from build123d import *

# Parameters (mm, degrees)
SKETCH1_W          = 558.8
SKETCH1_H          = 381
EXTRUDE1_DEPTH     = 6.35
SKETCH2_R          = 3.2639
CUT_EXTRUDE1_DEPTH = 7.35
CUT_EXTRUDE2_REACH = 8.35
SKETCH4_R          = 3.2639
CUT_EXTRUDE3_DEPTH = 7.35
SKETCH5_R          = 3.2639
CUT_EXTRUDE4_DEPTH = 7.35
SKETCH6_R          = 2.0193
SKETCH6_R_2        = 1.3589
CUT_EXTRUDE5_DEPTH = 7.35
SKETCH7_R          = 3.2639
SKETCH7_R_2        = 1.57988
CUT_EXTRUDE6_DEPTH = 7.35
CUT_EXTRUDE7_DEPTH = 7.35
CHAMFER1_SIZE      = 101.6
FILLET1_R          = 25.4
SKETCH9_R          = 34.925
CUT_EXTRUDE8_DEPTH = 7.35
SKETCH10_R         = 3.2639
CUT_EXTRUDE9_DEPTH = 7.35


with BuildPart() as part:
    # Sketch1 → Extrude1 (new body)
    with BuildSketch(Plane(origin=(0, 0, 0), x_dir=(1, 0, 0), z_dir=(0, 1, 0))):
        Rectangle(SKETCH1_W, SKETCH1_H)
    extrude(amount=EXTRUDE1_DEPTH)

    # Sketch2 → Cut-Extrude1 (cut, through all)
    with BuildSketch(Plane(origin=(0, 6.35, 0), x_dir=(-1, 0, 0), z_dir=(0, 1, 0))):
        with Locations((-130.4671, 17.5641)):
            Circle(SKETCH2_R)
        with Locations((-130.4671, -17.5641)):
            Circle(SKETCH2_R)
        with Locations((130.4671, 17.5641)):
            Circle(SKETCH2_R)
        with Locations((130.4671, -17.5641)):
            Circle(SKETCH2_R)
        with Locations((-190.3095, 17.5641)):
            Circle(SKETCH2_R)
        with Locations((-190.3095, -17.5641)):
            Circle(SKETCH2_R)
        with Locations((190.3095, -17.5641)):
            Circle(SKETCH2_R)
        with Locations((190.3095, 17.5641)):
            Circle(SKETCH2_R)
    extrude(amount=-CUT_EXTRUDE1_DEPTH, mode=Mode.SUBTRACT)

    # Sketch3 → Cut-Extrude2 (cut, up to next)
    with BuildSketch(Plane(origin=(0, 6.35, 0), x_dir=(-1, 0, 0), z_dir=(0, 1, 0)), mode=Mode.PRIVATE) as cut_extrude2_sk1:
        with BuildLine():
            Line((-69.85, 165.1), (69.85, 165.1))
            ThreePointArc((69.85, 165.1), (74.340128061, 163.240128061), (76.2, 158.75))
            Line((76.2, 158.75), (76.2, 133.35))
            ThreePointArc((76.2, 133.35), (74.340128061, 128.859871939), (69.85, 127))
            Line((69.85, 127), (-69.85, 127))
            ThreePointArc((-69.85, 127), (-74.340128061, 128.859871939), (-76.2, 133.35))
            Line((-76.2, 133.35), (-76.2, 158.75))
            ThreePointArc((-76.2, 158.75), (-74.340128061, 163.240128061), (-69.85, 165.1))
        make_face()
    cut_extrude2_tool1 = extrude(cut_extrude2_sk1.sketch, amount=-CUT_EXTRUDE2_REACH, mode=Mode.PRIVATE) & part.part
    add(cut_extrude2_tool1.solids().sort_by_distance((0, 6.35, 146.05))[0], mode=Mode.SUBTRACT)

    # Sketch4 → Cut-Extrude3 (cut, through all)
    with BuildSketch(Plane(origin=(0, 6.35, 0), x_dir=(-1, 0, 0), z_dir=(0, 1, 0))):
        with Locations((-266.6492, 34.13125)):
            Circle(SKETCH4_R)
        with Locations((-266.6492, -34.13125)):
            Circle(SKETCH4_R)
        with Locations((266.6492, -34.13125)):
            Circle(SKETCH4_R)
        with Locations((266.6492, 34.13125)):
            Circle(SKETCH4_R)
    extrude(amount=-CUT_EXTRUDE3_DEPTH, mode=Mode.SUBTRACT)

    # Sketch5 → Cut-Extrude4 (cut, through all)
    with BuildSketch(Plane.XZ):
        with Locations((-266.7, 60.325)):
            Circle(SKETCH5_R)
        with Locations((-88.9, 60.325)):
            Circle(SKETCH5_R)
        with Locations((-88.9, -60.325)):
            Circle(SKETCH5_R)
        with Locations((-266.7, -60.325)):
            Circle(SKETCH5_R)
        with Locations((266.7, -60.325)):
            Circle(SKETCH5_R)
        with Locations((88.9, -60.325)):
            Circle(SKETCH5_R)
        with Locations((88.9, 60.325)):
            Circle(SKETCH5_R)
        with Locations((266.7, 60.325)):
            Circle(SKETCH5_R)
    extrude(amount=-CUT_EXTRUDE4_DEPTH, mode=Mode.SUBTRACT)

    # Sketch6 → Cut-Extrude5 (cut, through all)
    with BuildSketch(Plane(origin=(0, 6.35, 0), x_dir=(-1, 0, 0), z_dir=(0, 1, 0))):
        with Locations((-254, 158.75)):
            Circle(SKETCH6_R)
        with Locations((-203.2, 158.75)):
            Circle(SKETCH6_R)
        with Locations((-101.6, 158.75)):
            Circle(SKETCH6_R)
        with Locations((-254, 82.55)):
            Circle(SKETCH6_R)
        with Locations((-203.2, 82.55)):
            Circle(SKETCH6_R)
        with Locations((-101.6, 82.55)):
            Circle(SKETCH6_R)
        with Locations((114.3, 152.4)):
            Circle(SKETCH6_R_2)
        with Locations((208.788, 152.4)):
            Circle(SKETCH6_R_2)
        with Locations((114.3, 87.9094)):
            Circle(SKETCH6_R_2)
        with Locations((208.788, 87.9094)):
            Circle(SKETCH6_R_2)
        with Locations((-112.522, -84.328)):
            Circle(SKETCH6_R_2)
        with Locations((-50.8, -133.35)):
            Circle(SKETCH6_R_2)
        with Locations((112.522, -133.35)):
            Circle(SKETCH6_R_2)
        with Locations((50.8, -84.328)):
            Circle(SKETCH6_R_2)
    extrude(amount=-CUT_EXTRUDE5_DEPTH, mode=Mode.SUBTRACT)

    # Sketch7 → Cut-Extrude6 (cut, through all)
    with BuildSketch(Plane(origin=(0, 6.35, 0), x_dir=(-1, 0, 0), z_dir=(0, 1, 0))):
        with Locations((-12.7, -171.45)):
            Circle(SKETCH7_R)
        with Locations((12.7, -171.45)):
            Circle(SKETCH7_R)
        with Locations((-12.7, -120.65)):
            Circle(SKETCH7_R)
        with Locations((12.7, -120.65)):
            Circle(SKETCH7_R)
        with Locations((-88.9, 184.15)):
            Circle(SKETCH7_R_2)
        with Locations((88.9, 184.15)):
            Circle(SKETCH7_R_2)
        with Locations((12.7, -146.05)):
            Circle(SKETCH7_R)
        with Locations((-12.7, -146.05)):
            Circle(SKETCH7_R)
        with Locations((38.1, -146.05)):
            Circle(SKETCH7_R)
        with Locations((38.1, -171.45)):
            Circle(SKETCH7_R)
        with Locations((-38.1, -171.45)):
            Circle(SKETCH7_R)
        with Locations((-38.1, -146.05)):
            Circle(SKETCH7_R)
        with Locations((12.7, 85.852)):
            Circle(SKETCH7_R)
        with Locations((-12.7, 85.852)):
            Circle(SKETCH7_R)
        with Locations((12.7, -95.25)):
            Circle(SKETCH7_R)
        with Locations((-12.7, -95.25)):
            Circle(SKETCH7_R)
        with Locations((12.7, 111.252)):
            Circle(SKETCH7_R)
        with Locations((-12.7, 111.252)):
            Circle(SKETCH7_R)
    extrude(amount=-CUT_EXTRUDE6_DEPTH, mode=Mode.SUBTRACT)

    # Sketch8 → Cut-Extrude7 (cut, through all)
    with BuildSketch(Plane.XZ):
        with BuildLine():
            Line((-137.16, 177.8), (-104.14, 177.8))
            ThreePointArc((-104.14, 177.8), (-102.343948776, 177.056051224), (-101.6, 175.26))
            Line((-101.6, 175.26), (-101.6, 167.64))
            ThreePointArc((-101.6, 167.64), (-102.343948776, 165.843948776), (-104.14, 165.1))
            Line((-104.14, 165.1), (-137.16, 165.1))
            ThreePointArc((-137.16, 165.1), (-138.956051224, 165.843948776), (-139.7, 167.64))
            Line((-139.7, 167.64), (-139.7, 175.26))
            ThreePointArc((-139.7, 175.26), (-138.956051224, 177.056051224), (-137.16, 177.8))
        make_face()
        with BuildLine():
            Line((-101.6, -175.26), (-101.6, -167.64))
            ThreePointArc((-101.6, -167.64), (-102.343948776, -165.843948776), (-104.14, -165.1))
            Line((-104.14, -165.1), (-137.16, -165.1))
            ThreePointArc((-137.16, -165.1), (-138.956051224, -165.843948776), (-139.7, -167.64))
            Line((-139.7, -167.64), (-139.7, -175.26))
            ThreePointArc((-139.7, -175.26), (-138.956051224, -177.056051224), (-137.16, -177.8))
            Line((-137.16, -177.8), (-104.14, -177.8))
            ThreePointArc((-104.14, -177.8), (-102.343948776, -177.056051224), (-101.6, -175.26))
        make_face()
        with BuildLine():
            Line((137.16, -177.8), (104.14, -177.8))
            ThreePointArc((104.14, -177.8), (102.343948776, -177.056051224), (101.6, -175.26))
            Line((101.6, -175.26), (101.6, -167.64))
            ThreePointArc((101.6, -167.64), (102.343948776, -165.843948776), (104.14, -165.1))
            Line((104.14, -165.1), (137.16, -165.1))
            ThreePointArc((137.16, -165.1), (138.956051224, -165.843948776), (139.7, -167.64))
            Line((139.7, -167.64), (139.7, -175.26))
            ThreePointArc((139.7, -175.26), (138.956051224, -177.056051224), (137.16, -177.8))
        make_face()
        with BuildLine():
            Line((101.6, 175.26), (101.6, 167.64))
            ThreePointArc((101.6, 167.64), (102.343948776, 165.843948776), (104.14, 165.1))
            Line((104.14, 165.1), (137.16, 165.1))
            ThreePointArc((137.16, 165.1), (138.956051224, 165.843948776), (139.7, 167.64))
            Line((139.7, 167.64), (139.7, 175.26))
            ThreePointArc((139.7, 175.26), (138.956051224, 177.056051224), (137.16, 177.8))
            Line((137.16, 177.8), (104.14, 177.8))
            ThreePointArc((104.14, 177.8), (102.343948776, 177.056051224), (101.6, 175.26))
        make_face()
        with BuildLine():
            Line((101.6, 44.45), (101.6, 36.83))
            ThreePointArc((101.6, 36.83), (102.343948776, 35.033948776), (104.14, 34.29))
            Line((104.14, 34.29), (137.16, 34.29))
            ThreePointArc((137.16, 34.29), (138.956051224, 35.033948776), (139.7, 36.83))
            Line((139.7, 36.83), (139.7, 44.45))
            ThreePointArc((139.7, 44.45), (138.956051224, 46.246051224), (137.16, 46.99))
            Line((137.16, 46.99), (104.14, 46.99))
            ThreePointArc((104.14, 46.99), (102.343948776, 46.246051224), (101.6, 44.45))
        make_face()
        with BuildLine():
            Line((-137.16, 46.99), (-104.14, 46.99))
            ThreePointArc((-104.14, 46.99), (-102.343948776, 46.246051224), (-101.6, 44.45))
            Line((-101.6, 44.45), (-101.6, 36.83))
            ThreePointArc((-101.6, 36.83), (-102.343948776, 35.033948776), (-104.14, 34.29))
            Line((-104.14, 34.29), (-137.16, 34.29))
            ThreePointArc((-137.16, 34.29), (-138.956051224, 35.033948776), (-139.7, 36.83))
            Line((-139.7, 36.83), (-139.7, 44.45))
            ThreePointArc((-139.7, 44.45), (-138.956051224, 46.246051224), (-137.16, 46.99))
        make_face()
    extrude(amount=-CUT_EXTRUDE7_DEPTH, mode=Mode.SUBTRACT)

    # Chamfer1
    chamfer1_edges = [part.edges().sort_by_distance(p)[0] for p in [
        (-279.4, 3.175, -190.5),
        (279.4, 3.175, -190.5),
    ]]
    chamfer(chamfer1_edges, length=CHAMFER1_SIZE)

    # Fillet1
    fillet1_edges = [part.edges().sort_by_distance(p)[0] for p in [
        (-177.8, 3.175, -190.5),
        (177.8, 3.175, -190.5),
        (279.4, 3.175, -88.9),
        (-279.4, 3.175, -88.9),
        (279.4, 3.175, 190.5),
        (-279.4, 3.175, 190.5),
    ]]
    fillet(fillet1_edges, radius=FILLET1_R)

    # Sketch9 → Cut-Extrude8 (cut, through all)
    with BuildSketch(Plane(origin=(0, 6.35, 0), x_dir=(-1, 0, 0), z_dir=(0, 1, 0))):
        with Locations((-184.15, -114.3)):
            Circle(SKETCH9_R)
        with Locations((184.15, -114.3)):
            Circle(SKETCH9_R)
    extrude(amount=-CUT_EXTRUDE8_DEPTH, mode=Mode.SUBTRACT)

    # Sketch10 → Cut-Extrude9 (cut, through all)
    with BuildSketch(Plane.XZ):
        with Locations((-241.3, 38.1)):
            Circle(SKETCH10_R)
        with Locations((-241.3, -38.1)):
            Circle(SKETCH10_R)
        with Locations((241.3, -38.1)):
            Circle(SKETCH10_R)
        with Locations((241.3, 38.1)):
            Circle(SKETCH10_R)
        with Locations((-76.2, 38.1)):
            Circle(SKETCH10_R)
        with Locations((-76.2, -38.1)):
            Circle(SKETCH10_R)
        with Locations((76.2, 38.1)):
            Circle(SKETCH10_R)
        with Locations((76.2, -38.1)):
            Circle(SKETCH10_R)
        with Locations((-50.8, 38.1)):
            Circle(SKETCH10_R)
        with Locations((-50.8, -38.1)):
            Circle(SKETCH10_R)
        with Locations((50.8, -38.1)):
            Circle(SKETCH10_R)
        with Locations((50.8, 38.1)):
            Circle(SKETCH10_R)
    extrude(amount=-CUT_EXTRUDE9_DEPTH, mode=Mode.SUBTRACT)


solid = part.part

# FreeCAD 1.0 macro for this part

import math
import FreeCAD as App
import Part
import Sketcher

V = App.Vector
Q = App.Units.Quantity


def edges_at(feature, points):
    """Names of the edges that pass closest to the given points."""
    edges = feature.Shape.Edges
    near = lambda p: min(range(len(edges)), key=lambda i: edges[i].distToShape(Part.Vertex(*p))[0])
    return sorted({f"Edge{near(p) + 1}" for p in points})

doc = App.newDocument("Part")
body = doc.addObject("PartDesign::Body", "Body")

# Sketch on XZ plane
sketch1 = body.newObject("Sketcher::SketchObject", "Sketch")
sketch1.AttachmentSupport = (doc.getObject("XZ_Plane"), [""])
sketch1.MapMode = "FlatFace"
sketch1.addGeometry([
    Part.LineSegment(V(-279.4, -190.5, 0), V(-279.4, 190.5, 0)),
    Part.LineSegment(V(-279.4, 190.5, 0), V(279.4, 190.5, 0)),
    Part.LineSegment(V(279.4, 190.5, 0), V(279.4, -190.5, 0)),
    Part.LineSegment(V(279.4, -190.5, 0), V(-279.4, -190.5, 0)),
], False)
sketch1.addConstraint([
    Sketcher.Constraint("Coincident", 0, 2, 1, 1),
    Sketcher.Constraint("Coincident", 1, 2, 2, 1),
    Sketcher.Constraint("Coincident", 2, 2, 3, 1),
    Sketcher.Constraint("Coincident", 3, 2, 0, 1),
    Sketcher.Constraint("Vertical", 0),
    Sketcher.Constraint("Horizontal", 1),
    Sketcher.Constraint("Vertical", 2),
    Sketcher.Constraint("Horizontal", 3),
    Sketcher.Constraint("Symmetric", 0, 2, 2, 2, -1, 1),
    Sketcher.Constraint("DistanceX", 1, 1, 1, 2, Q("22 in")),
    Sketcher.Constraint("DistanceY", 0, 1, 0, 2, Q("15 in")),
])
pad1 = body.newObject("PartDesign::Pad", "Pad")
pad1.Profile = sketch1
pad1.Length = Q("0.25 in")
pad1.Reversed = True

# Sketch on XZ plane
sketch2 = body.newObject("Sketcher::SketchObject", "Sketch001")
sketch2.AttachmentSupport = (doc.getObject("XZ_Plane"), [""])
sketch2.MapMode = "FlatFace"
sketch2.AttachmentOffset = App.Placement(V(0, 0, -0.25 * 25.4), App.Rotation())
sketch2.addGeometry([
    Part.Circle(V(130.4671, 17.5641, 0), V(0, 0, 1), 3.2639),  # 0
    Part.Circle(V(130.4671, -17.5641, 0), V(0, 0, 1), 3.2639),  # 1
    Part.Circle(V(-130.4671, 17.5641, 0), V(0, 0, 1), 3.2639),  # 2
    Part.Circle(V(-130.4671, -17.5641, 0), V(0, 0, 1), 3.2639),  # 3
    Part.Circle(V(190.3095, 17.5641, 0), V(0, 0, 1), 3.2639),  # 4
    Part.Circle(V(190.3095, -17.5641, 0), V(0, 0, 1), 3.2639),  # 5
    Part.Circle(V(-190.3095, -17.5641, 0), V(0, 0, 1), 3.2639),  # 6
    Part.Circle(V(-190.3095, 17.5641, 0), V(0, 0, 1), 3.2639),  # 7
], False)
sketch2.addConstraint([
    Sketcher.Constraint("Equal", 0, 1),
    Sketcher.Constraint("Equal", 1, 2),
    Sketcher.Constraint("Equal", 2, 3),
    Sketcher.Constraint("Equal", 3, 4),
    Sketcher.Constraint("Equal", 4, 5),
    Sketcher.Constraint("Equal", 5, 6),
    Sketcher.Constraint("Equal", 6, 7),
    Sketcher.Constraint("Symmetric", 1, 3, 2, 3, -1, 1),
    Sketcher.Constraint("Symmetric", 0, 3, 3, 3, -1, 1),
    Sketcher.Constraint("Symmetric", 4, 3, 6, 3, -1, 1),
    Sketcher.Constraint("Symmetric", 5, 3, 7, 3, -1, 1),
    Sketcher.Constraint("Symmetric", 0, 3, 2, 3, -2),
    Sketcher.Constraint("Symmetric", 5, 3, 6, 3, -2),
    Sketcher.Constraint("Horizontal", 2, 3, 4, 3),
    Sketcher.Constraint("Diameter", 0, Q("0.257 in")),
    Sketcher.Constraint("DistanceY", 1, 3, 0, 3, Q("1.383 in")),
    Sketcher.Constraint("DistanceX", 2, 3, 0, 3, Q("10.273 in")),
    Sketcher.Constraint("DistanceX", 0, 3, 4, 3, Q("2.356 in")),
])
pocket1 = body.newObject("PartDesign::Pocket", "Pocket")
pocket1.Profile = sketch2
pocket1.Type = "ThroughAll"
pocket1.Reversed = True

# Sketch on XZ plane
sketch3 = body.newObject("Sketcher::SketchObject", "Sketch002")
sketch3.AttachmentSupport = (doc.getObject("XZ_Plane"), [""])
sketch3.MapMode = "FlatFace"
sketch3.AttachmentOffset = App.Placement(V(0, 0, -0.25 * 25.4), App.Rotation())
sketch3.addGeometry([
    Part.LineSegment(V(-69.85, 165.1, 0), V(69.85, 165.1, 0)),  # 0
    Part.ArcOfCircle(Part.Circle(V(69.85, 158.75, 0), V(0, 0, 1), 6.35), math.radians(0), math.radians(90)),  # 1
    Part.LineSegment(V(76.2, 158.75, 0), V(76.2, 133.35, 0)),  # 2
    Part.ArcOfCircle(Part.Circle(V(69.85, 133.35, 0), V(0, 0, 1), 6.35), math.radians(-90), math.radians(0)),  # 3
    Part.LineSegment(V(69.85, 127, 0), V(-69.85, 127, 0)),  # 4
    Part.ArcOfCircle(Part.Circle(V(-69.85, 133.35, 0), V(0, 0, 1), 6.35), math.radians(180), math.radians(270)),  # 5
    Part.LineSegment(V(-76.2, 133.35, 0), V(-76.2, 158.75, 0)),  # 6
    Part.ArcOfCircle(Part.Circle(V(-69.85, 158.75, 0), V(0, 0, 1), 6.35), math.radians(90), math.radians(180)),  # 7
], False)
sketch3.addConstraint([
    Sketcher.Constraint("Tangent", 0, 2, 1, 2),
    Sketcher.Constraint("Tangent", 1, 1, 2, 1),
    Sketcher.Constraint("Tangent", 2, 2, 3, 2),
    Sketcher.Constraint("Tangent", 3, 1, 4, 1),
    Sketcher.Constraint("Tangent", 4, 2, 5, 2),
    Sketcher.Constraint("Tangent", 5, 1, 6, 1),
    Sketcher.Constraint("Tangent", 6, 2, 7, 2),
    Sketcher.Constraint("Tangent", 7, 1, 0, 1),
    Sketcher.Constraint("Horizontal", 0),
    Sketcher.Constraint("Vertical", 2),
    Sketcher.Constraint("Horizontal", 4),
    Sketcher.Constraint("Vertical", 6),
    Sketcher.Constraint("Equal", 1, 3),
    Sketcher.Constraint("Equal", 3, 5),
    Sketcher.Constraint("Equal", 5, 7),
    Sketcher.Constraint("DistanceY", 2, 2, 2, 1, Q("1 in")),
    Sketcher.Constraint("Radius", 1, Q("0.25 in")),
    Sketcher.Constraint("DistanceX", 0, 1, 0, 2, Q("5.5 in")),
    Sketcher.Constraint("DistanceX", -1, 1, 1, 1, Q("3 in")),
    Sketcher.Constraint("DistanceY", -1, 1, 3, 1, Q("5 in")),
])
pocket2 = body.newObject("PartDesign::Pocket", "Pocket001")
pocket2.Profile = sketch3
pocket2.Type = "UpToFirst"
pocket2.Reversed = True

# Sketch on XZ plane
sketch4 = body.newObject("Sketcher::SketchObject", "Sketch003")
sketch4.AttachmentSupport = (doc.getObject("XZ_Plane"), [""])
sketch4.MapMode = "FlatFace"
sketch4.AttachmentOffset = App.Placement(V(0, 0, -0.25 * 25.4), App.Rotation())
sketch4.addGeometry([
    Part.Circle(V(266.6492, 34.13125, 0), V(0, 0, 1), 3.2639),
    Part.Circle(V(266.6492, -34.13125, 0), V(0, 0, 1), 3.2639),
    Part.Circle(V(-266.6492, -34.13125, 0), V(0, 0, 1), 3.2639),
    Part.Circle(V(-266.6492, 34.13125, 0), V(0, 0, 1), 3.2639),
], False)
sketch4.addConstraint([
    Sketcher.Constraint("Equal", 0, 1),
    Sketcher.Constraint("Equal", 1, 2),
    Sketcher.Constraint("Equal", 2, 3),
    Sketcher.Constraint("Symmetric", 0, 3, 2, 3, -1, 1),
    Sketcher.Constraint("Symmetric", 1, 3, 3, 3, -1, 1),
    Sketcher.Constraint("Symmetric", 1, 3, 2, 3, -2),
    Sketcher.Constraint("Diameter", 0, Q("0.257 in")),
    Sketcher.Constraint("DistanceX", -1, 1, 0, 3, Q("10.498 in")),
    Sketcher.Constraint("DistanceY", -1, 1, 0, 3, Q("1.34375 in")),
])
pocket3 = body.newObject("PartDesign::Pocket", "Pocket002")
pocket3.Profile = sketch4
pocket3.Type = "ThroughAll"
pocket3.Reversed = True

# Sketch on XZ plane
sketch5 = body.newObject("Sketcher::SketchObject", "Sketch004")
sketch5.AttachmentSupport = (doc.getObject("XZ_Plane"), [""])
sketch5.MapMode = "FlatFace"
sketch5.addGeometry([
    Part.Circle(V(-266.7, 60.325, 0), V(0, 0, 1), 3.2639),  # 0
    Part.Circle(V(-88.9, 60.325, 0), V(0, 0, 1), 3.2639),  # 1
    Part.Circle(V(-88.9, -60.325, 0), V(0, 0, 1), 3.2639),  # 2
    Part.Circle(V(-266.7, -60.325, 0), V(0, 0, 1), 3.2639),  # 3
    Part.Circle(V(266.7, -60.325, 0), V(0, 0, 1), 3.2639),  # 4
    Part.Circle(V(88.9, -60.325, 0), V(0, 0, 1), 3.2639),  # 5
    Part.Circle(V(88.9, 60.325, 0), V(0, 0, 1), 3.2639),  # 6
    Part.Circle(V(266.7, 60.325, 0), V(0, 0, 1), 3.2639),  # 7
], False)
sketch5.addConstraint([
    Sketcher.Constraint("Equal", 0, 1),
    Sketcher.Constraint("Equal", 1, 2),
    Sketcher.Constraint("Equal", 2, 3),
    Sketcher.Constraint("Equal", 3, 4),
    Sketcher.Constraint("Equal", 4, 5),
    Sketcher.Constraint("Equal", 5, 6),
    Sketcher.Constraint("Equal", 6, 7),
    Sketcher.Constraint("Symmetric", 0, 3, 4, 3, -1, 1),
    Sketcher.Constraint("Symmetric", 1, 3, 5, 3, -1, 1),
    Sketcher.Constraint("Symmetric", 2, 3, 6, 3, -1, 1),
    Sketcher.Constraint("Symmetric", 3, 3, 7, 3, -1, 1),
    Sketcher.Constraint("Symmetric", 3, 3, 4, 3, -2),
    Sketcher.Constraint("Symmetric", 2, 3, 5, 3, -2),
    Sketcher.Constraint("Horizontal", 0, 3, 1, 3),
    Sketcher.Constraint("Diameter", 0, Q("0.257 in")),
    Sketcher.Constraint("DistanceX", 0, 3, 1, 3, Q("7 in")),
    Sketcher.Constraint("DistanceX", 2, 3, 4, 3, Q("14 in")),
    Sketcher.Constraint("DistanceY", 2, 3, 1, 3, Q("4.75 in")),
])
pocket4 = body.newObject("PartDesign::Pocket", "Pocket003")
pocket4.Profile = sketch5
pocket4.Type = "ThroughAll"

# Sketch on XZ plane
sketch6 = body.newObject("Sketcher::SketchObject", "Sketch005")
sketch6.AttachmentSupport = (doc.getObject("XZ_Plane"), [""])
sketch6.MapMode = "FlatFace"
sketch6.AttachmentOffset = App.Placement(V(0, 0, -0.25 * 25.4), App.Rotation())
sketch6.addGeometry([
    Part.Circle(V(254, 158.75, 0), V(0, 0, 1), 2.0193),  # 0
    Part.Circle(V(203.2, 158.75, 0), V(0, 0, 1), 2.0193),  # 1
    Part.Circle(V(101.6, 158.75, 0), V(0, 0, 1), 2.0193),  # 2
    Part.Circle(V(254, 82.55, 0), V(0, 0, 1), 2.0193),  # 3
    Part.Circle(V(203.2, 82.55, 0), V(0, 0, 1), 2.0193),  # 4
    Part.Circle(V(101.6, 82.55, 0), V(0, 0, 1), 2.0193),  # 5
    Part.Circle(V(-114.3, 152.4, 0), V(0, 0, 1), 1.3589),  # 6
    Part.Circle(V(-208.788, 152.4, 0), V(0, 0, 1), 1.3589),  # 7
    Part.Circle(V(-114.3, 87.9094, 0), V(0, 0, 1), 1.3589),  # 8
    Part.Circle(V(-208.788, 87.9094, 0), V(0, 0, 1), 1.3589),  # 9
    Part.Circle(V(112.522, -84.328, 0), V(0, 0, 1), 1.3589),  # 10
    Part.Circle(V(50.8, -133.35, 0), V(0, 0, 1), 1.3589),  # 11
    Part.Circle(V(-112.522, -133.35, 0), V(0, 0, 1), 1.3589),  # 12
    Part.Circle(V(-50.8, -84.328, 0), V(0, 0, 1), 1.3589),  # 13
], False)
sketch6.addConstraint([
    Sketcher.Constraint("Equal", 0, 1),
    Sketcher.Constraint("Equal", 1, 2),
    Sketcher.Constraint("Equal", 2, 3),
    Sketcher.Constraint("Equal", 3, 4),
    Sketcher.Constraint("Equal", 4, 5),
    Sketcher.Constraint("Equal", 6, 7),
    Sketcher.Constraint("Equal", 7, 8),
    Sketcher.Constraint("Equal", 8, 9),
    Sketcher.Constraint("Equal", 9, 10),
    Sketcher.Constraint("Equal", 10, 11),
    Sketcher.Constraint("Equal", 11, 12),
    Sketcher.Constraint("Equal", 12, 13),
    Sketcher.Constraint("Horizontal", 0, 3, 1, 3),
    Sketcher.Constraint("Horizontal", 1, 3, 2, 3),
    Sketcher.Constraint("Horizontal", 3, 3, 4, 3),
    Sketcher.Constraint("Horizontal", 4, 3, 5, 3),
    Sketcher.Constraint("Horizontal", 6, 3, 7, 3),
    Sketcher.Constraint("Horizontal", 8, 3, 9, 3),
    Sketcher.Constraint("Horizontal", 11, 3, 12, 3),
    Sketcher.Constraint("Horizontal", 10, 3, 13, 3),
    Sketcher.Constraint("Vertical", 0, 3, 3, 3),
    Sketcher.Constraint("Vertical", 1, 3, 4, 3),
    Sketcher.Constraint("Vertical", 2, 3, 5, 3),
    Sketcher.Constraint("Vertical", 6, 3, 8, 3),
    Sketcher.Constraint("Vertical", 7, 3, 9, 3),
    Sketcher.Constraint("Diameter", 0, Q("0.159 in")),
    Sketcher.Constraint("Diameter", 6, Q("0.107 in")),
    Sketcher.Constraint("DistanceX", -1, 1, 0, 3, Q("10 in")),
    Sketcher.Constraint("DistanceX", -1, 1, 1, 3, Q("8 in")),
    Sketcher.Constraint("DistanceX", -1, 1, 2, 3, Q("4 in")),
    Sketcher.Constraint("DistanceY", -1, 1, 6, 3, Q("6 in")),
    Sketcher.Constraint("DistanceX", -1, 1, 11, 3, Q("2 in")),
    Sketcher.Constraint("DistanceX", 13, 3, -1, 1, Q("2 in")),
    Sketcher.Constraint("DistanceY", 3, 3, 0, 3, Q("3 in")),
    Sketcher.Constraint("DistanceX", 6, 3, -1, 1, Q("4.5 in")),
    Sketcher.Constraint("DistanceY", 11, 3, 5, 3, Q("8.5 in")),
    Sketcher.Constraint("DistanceY", -1, 1, 0, 3, Q("6.25 in")),
    Sketcher.Constraint("DistanceX", 7, 3, -1, 1, Q("8.22 in")),
    Sketcher.Constraint("DistanceX", -1, 1, 10, 3, Q("4.43 in")),
    Sketcher.Constraint("DistanceY", 10, 3, -1, 1, Q("3.32 in")),
    Sketcher.Constraint("DistanceX", 12, 3, -1, 1, Q("4.43 in")),
    Sketcher.Constraint("DistanceY", -1, 1, 8, 3, Q("3.461 in")),
])
pocket5 = body.newObject("PartDesign::Pocket", "Pocket004")
pocket5.Profile = sketch6
pocket5.Type = "ThroughAll"
pocket5.Reversed = True

# Sketch on XZ plane
sketch7 = body.newObject("Sketcher::SketchObject", "Sketch006")
sketch7.AttachmentSupport = (doc.getObject("XZ_Plane"), [""])
sketch7.MapMode = "FlatFace"
sketch7.AttachmentOffset = App.Placement(V(0, 0, -0.25 * 25.4), App.Rotation())
sketch7.addGeometry([
    Part.Circle(V(12.7, -171.45, 0), V(0, 0, 1), 3.2639),  # 0
    Part.Circle(V(-12.7, -171.45, 0), V(0, 0, 1), 3.2639),  # 1
    Part.Circle(V(12.7, -120.65, 0), V(0, 0, 1), 3.2639),  # 2
    Part.Circle(V(-12.7, -120.65, 0), V(0, 0, 1), 3.2639),  # 3
    Part.Circle(V(88.9, 184.15, 0), V(0, 0, 1), 1.57988),  # 4
    Part.Circle(V(-88.9, 184.15, 0), V(0, 0, 1), 1.57988),  # 5
    Part.Circle(V(-12.7, -146.05, 0), V(0, 0, 1), 3.2639),  # 6
    Part.Circle(V(12.7, -146.05, 0), V(0, 0, 1), 3.2639),  # 7
    Part.Circle(V(-38.1, -146.05, 0), V(0, 0, 1), 3.2639),  # 8
    Part.Circle(V(-38.1, -171.45, 0), V(0, 0, 1), 3.2639),  # 9
    Part.Circle(V(38.1, -171.45, 0), V(0, 0, 1), 3.2639),  # 10
    Part.Circle(V(38.1, -146.05, 0), V(0, 0, 1), 3.2639),  # 11
    Part.Circle(V(-12.7, 85.852, 0), V(0, 0, 1), 3.2639),  # 12
    Part.Circle(V(12.7, 85.852, 0), V(0, 0, 1), 3.2639),  # 13
    Part.Circle(V(-12.7, -95.25, 0), V(0, 0, 1), 3.2639),  # 14
    Part.Circle(V(12.7, -95.25, 0), V(0, 0, 1), 3.2639),  # 15
    Part.Circle(V(-12.7, 111.252, 0), V(0, 0, 1), 3.2639),  # 16
    Part.Circle(V(12.7, 111.252, 0), V(0, 0, 1), 3.2639),  # 17
], False)
sketch7.addConstraint([
    Sketcher.Constraint("Equal", 0, 1),
    Sketcher.Constraint("Equal", 1, 2),
    Sketcher.Constraint("Equal", 2, 3),
    Sketcher.Constraint("Equal", 4, 5),
    Sketcher.Constraint("Equal", 3, 6),
    Sketcher.Constraint("Equal", 6, 7),
    Sketcher.Constraint("Equal", 7, 8),
    Sketcher.Constraint("Equal", 8, 9),
    Sketcher.Constraint("Equal", 9, 10),
    Sketcher.Constraint("Equal", 10, 11),
    Sketcher.Constraint("Equal", 11, 12),
    Sketcher.Constraint("Equal", 12, 13),
    Sketcher.Constraint("Equal", 13, 14),
    Sketcher.Constraint("Equal", 14, 15),
    Sketcher.Constraint("Equal", 15, 16),
    Sketcher.Constraint("Equal", 16, 17),
    Sketcher.Constraint("Symmetric", 0, 3, 1, 3, -2),
    Sketcher.Constraint("Symmetric", 2, 3, 3, 3, -2),
    Sketcher.Constraint("Symmetric", 4, 3, 5, 3, -2),
    Sketcher.Constraint("Symmetric", 6, 3, 7, 3, -2),
    Sketcher.Constraint("Symmetric", 9, 3, 10, 3, -2),
    Sketcher.Constraint("Symmetric", 8, 3, 11, 3, -2),
    Sketcher.Constraint("Symmetric", 12, 3, 13, 3, -2),
    Sketcher.Constraint("Symmetric", 14, 3, 15, 3, -2),
    Sketcher.Constraint("Symmetric", 16, 3, 17, 3, -2),
    Sketcher.Constraint("Horizontal", 7, 3, 8, 3),
    Sketcher.Constraint("Horizontal", 1, 3, 9, 3),
    Sketcher.Constraint("Vertical", 0, 3, 2, 3),
    Sketcher.Constraint("Vertical", 3, 3, 6, 3),
    Sketcher.Constraint("Vertical", 8, 3, 9, 3),
    Sketcher.Constraint("Vertical", 6, 3, 12, 3),
    Sketcher.Constraint("Vertical", 12, 3, 14, 3),
    Sketcher.Constraint("Vertical", 14, 3, 16, 3),
    Sketcher.Constraint("Diameter", 0, Q("0.257 in")),
    Sketcher.Constraint("DistanceX", 1, 3, 0, 3, Q("1 in")),
    Sketcher.Constraint("DistanceY", 0, 3, 2, 3, Q("2 in")),
    Sketcher.Constraint("DistanceX", 2, 3, 4, 3, Q("3 in")),
    Sketcher.Constraint("DistanceY", 2, 3, 4, 3, Q("12 in")),
    Sketcher.Constraint("DistanceY", 1, 3, 6, 3, Q("1 in")),
    Sketcher.Constraint("DistanceX", 8, 3, 6, 3, Q("1 in")),
    Sketcher.Constraint("DistanceY", 3, 3, 14, 3, Q("1 in")),
    Sketcher.Constraint("DistanceY", 12, 3, 16, 3, Q("1 in")),
    Sketcher.Constraint("Diameter", 4, Q("0.1244 in")),
    Sketcher.Constraint("DistanceY", 0, 3, -1, 1, Q("6.75 in")),
    Sketcher.Constraint("DistanceY", -1, 1, 12, 3, Q("3.38 in")),
])
pocket6 = body.newObject("PartDesign::Pocket", "Pocket005")
pocket6.Profile = sketch7
pocket6.Type = "ThroughAll"
pocket6.Reversed = True

# Sketch on XZ plane
sketch8 = body.newObject("Sketcher::SketchObject", "Sketch007")
sketch8.AttachmentSupport = (doc.getObject("XZ_Plane"), [""])
sketch8.MapMode = "FlatFace"
sketch8.addGeometry([
    Part.LineSegment(V(-104.14, 177.8, 0), V(-137.16, 177.8, 0)),  # 0
    Part.ArcOfCircle(Part.Circle(V(-137.16, 175.26, 0), V(0, 0, 1), 2.54), math.radians(90), math.radians(180)),  # 1
    Part.LineSegment(V(-139.7, 175.26, 0), V(-139.7, 167.64, 0)),  # 2
    Part.ArcOfCircle(Part.Circle(V(-137.16, 167.64, 0), V(0, 0, 1), 2.54), math.radians(-180), math.radians(-90)),  # 3
    Part.LineSegment(V(-137.16, 165.1, 0), V(-104.14, 165.1, 0)),  # 4
    Part.ArcOfCircle(Part.Circle(V(-104.14, 167.64, 0), V(0, 0, 1), 2.54), math.radians(-90), math.radians(0)),  # 5
    Part.LineSegment(V(-101.6, 167.64, 0), V(-101.6, 175.26, 0)),  # 6
    Part.ArcOfCircle(Part.Circle(V(-104.14, 175.26, 0), V(0, 0, 1), 2.54), math.radians(0), math.radians(90)),  # 7
    Part.LineSegment(V(-101.6, -175.26, 0), V(-101.6, -167.64, 0)),  # 8
    Part.ArcOfCircle(Part.Circle(V(-104.14, -167.64, 0), V(0, 0, 1), 2.54), math.radians(0), math.radians(90)),  # 9
    Part.LineSegment(V(-104.14, -165.1, 0), V(-137.16, -165.1, 0)),  # 10
    Part.ArcOfCircle(Part.Circle(V(-137.16, -167.64, 0), V(0, 0, 1), 2.54), math.radians(90), math.radians(180)),  # 11
    Part.LineSegment(V(-139.7, -167.64, 0), V(-139.7, -175.26, 0)),  # 12
    Part.ArcOfCircle(Part.Circle(V(-137.16, -175.26, 0), V(0, 0, 1), 2.54), math.radians(-180), math.radians(-90)),  # 13
    Part.LineSegment(V(-137.16, -177.8, 0), V(-104.14, -177.8, 0)),  # 14
    Part.ArcOfCircle(Part.Circle(V(-104.14, -175.26, 0), V(0, 0, 1), 2.54), math.radians(-90), math.radians(0)),  # 15
    Part.LineSegment(V(104.14, -177.8, 0), V(137.16, -177.8, 0)),  # 16
    Part.ArcOfCircle(Part.Circle(V(137.16, -175.26, 0), V(0, 0, 1), 2.54), math.radians(-90), math.radians(0)),  # 17
    Part.LineSegment(V(139.7, -175.26, 0), V(139.7, -167.64, 0)),  # 18
    Part.ArcOfCircle(Part.Circle(V(137.16, -167.64, 0), V(0, 0, 1), 2.54), math.radians(0), math.radians(90)),  # 19
    Part.LineSegment(V(137.16, -165.1, 0), V(104.14, -165.1, 0)),  # 20
    Part.ArcOfCircle(Part.Circle(V(104.14, -167.64, 0), V(0, 0, 1), 2.54), math.radians(90), math.radians(180)),  # 21
    Part.LineSegment(V(101.6, -167.64, 0), V(101.6, -175.26, 0)),  # 22
    Part.ArcOfCircle(Part.Circle(V(104.14, -175.26, 0), V(0, 0, 1), 2.54), math.radians(-180), math.radians(-90)),  # 23
    Part.LineSegment(V(101.6, 175.26, 0), V(101.6, 167.64, 0)),  # 24
    Part.ArcOfCircle(Part.Circle(V(104.14, 167.64, 0), V(0, 0, 1), 2.54), math.radians(-180), math.radians(-90)),  # 25
    Part.LineSegment(V(104.14, 165.1, 0), V(137.16, 165.1, 0)),  # 26
    Part.ArcOfCircle(Part.Circle(V(137.16, 167.64, 0), V(0, 0, 1), 2.54), math.radians(-90), math.radians(0)),  # 27
    Part.LineSegment(V(139.7, 167.64, 0), V(139.7, 175.26, 0)),  # 28
    Part.ArcOfCircle(Part.Circle(V(137.16, 175.26, 0), V(0, 0, 1), 2.54), math.radians(0), math.radians(90)),  # 29
    Part.LineSegment(V(137.16, 177.8, 0), V(104.14, 177.8, 0)),  # 30
    Part.ArcOfCircle(Part.Circle(V(104.14, 175.26, 0), V(0, 0, 1), 2.54), math.radians(90), math.radians(180)),  # 31
    Part.LineSegment(V(101.6, 44.45, 0), V(101.6, 36.83, 0)),  # 32
    Part.ArcOfCircle(Part.Circle(V(104.14, 36.83, 0), V(0, 0, 1), 2.54), math.radians(-180), math.radians(-90)),  # 33
    Part.LineSegment(V(104.14, 34.29, 0), V(137.16, 34.29, 0)),  # 34
    Part.ArcOfCircle(Part.Circle(V(137.16, 36.83, 0), V(0, 0, 1), 2.54), math.radians(-90), math.radians(0)),  # 35
    Part.LineSegment(V(139.7, 36.83, 0), V(139.7, 44.45, 0)),  # 36
    Part.ArcOfCircle(Part.Circle(V(137.16, 44.45, 0), V(0, 0, 1), 2.54), math.radians(0), math.radians(90)),  # 37
    Part.LineSegment(V(137.16, 46.99, 0), V(104.14, 46.99, 0)),  # 38
    Part.ArcOfCircle(Part.Circle(V(104.14, 44.45, 0), V(0, 0, 1), 2.54), math.radians(90), math.radians(180)),  # 39
    Part.LineSegment(V(-104.14, 46.99, 0), V(-137.16, 46.99, 0)),  # 40
    Part.ArcOfCircle(Part.Circle(V(-137.16, 44.45, 0), V(0, 0, 1), 2.54), math.radians(90), math.radians(180)),  # 41
    Part.LineSegment(V(-139.7, 44.45, 0), V(-139.7, 36.83, 0)),  # 42
    Part.ArcOfCircle(Part.Circle(V(-137.16, 36.83, 0), V(0, 0, 1), 2.54), math.radians(-180), math.radians(-90)),  # 43
    Part.LineSegment(V(-137.16, 34.29, 0), V(-104.14, 34.29, 0)),  # 44
    Part.ArcOfCircle(Part.Circle(V(-104.14, 36.83, 0), V(0, 0, 1), 2.54), math.radians(-90), math.radians(0)),  # 45
    Part.LineSegment(V(-101.6, 36.83, 0), V(-101.6, 44.45, 0)),  # 46
    Part.ArcOfCircle(Part.Circle(V(-104.14, 44.45, 0), V(0, 0, 1), 2.54), math.radians(0), math.radians(90)),  # 47
], False)
sketch8.addConstraint([
    Sketcher.Constraint("Tangent", 0, 2, 1, 1),
    Sketcher.Constraint("Tangent", 1, 2, 2, 1),
    Sketcher.Constraint("Tangent", 2, 2, 3, 1),
    Sketcher.Constraint("Tangent", 3, 2, 4, 1),
    Sketcher.Constraint("Tangent", 4, 2, 5, 1),
    Sketcher.Constraint("Tangent", 5, 2, 6, 1),
    Sketcher.Constraint("Tangent", 6, 2, 7, 1),
    Sketcher.Constraint("Tangent", 7, 2, 0, 1),
    Sketcher.Constraint("Tangent", 8, 2, 9, 1),
    Sketcher.Constraint("Tangent", 9, 2, 10, 1),
    Sketcher.Constraint("Tangent", 10, 2, 11, 1),
    Sketcher.Constraint("Tangent", 11, 2, 12, 1),
    Sketcher.Constraint("Tangent", 12, 2, 13, 1),
    Sketcher.Constraint("Tangent", 13, 2, 14, 1),
    Sketcher.Constraint("Tangent", 14, 2, 15, 1),
    Sketcher.Constraint("Tangent", 15, 2, 8, 1),
    Sketcher.Constraint("Tangent", 16, 2, 17, 1),
    Sketcher.Constraint("Tangent", 17, 2, 18, 1),
    Sketcher.Constraint("Tangent", 18, 2, 19, 1),
    Sketcher.Constraint("Tangent", 19, 2, 20, 1),
    Sketcher.Constraint("Tangent", 20, 2, 21, 1),
    Sketcher.Constraint("Tangent", 21, 2, 22, 1),
    Sketcher.Constraint("Tangent", 22, 2, 23, 1),
    Sketcher.Constraint("Tangent", 23, 2, 16, 1),
    Sketcher.Constraint("Tangent", 24, 2, 25, 1),
    Sketcher.Constraint("Tangent", 25, 2, 26, 1),
    Sketcher.Constraint("Tangent", 26, 2, 27, 1),
    Sketcher.Constraint("Tangent", 27, 2, 28, 1),
    Sketcher.Constraint("Tangent", 28, 2, 29, 1),
    Sketcher.Constraint("Tangent", 29, 2, 30, 1),
    Sketcher.Constraint("Tangent", 30, 2, 31, 1),
    Sketcher.Constraint("Tangent", 31, 2, 24, 1),
    Sketcher.Constraint("Tangent", 32, 2, 33, 1),
    Sketcher.Constraint("Tangent", 33, 2, 34, 1),
    Sketcher.Constraint("Tangent", 34, 2, 35, 1),
    Sketcher.Constraint("Tangent", 35, 2, 36, 1),
    Sketcher.Constraint("Tangent", 36, 2, 37, 1),
    Sketcher.Constraint("Tangent", 37, 2, 38, 1),
    Sketcher.Constraint("Tangent", 38, 2, 39, 1),
    Sketcher.Constraint("Tangent", 39, 2, 32, 1),
    Sketcher.Constraint("Tangent", 40, 2, 41, 1),
    Sketcher.Constraint("Tangent", 41, 2, 42, 1),
    Sketcher.Constraint("Tangent", 42, 2, 43, 1),
    Sketcher.Constraint("Tangent", 43, 2, 44, 1),
    Sketcher.Constraint("Tangent", 44, 2, 45, 1),
    Sketcher.Constraint("Tangent", 45, 2, 46, 1),
    Sketcher.Constraint("Tangent", 46, 2, 47, 1),
    Sketcher.Constraint("Tangent", 47, 2, 40, 1),
    Sketcher.Constraint("Horizontal", 0),
    Sketcher.Constraint("Vertical", 2),
    Sketcher.Constraint("Horizontal", 4),
    Sketcher.Constraint("Vertical", 6),
    Sketcher.Constraint("Vertical", 8),
    Sketcher.Constraint("Horizontal", 10),
    Sketcher.Constraint("Vertical", 12),
    Sketcher.Constraint("Horizontal", 14),
    Sketcher.Constraint("Horizontal", 16),
    Sketcher.Constraint("Vertical", 18),
    Sketcher.Constraint("Horizontal", 20),
    Sketcher.Constraint("Vertical", 22),
    Sketcher.Constraint("Vertical", 24),
    Sketcher.Constraint("Horizontal", 26),
    Sketcher.Constraint("Vertical", 28),
    Sketcher.Constraint("Horizontal", 30),
    Sketcher.Constraint("Vertical", 32),
    Sketcher.Constraint("Horizontal", 34),
    Sketcher.Constraint("Vertical", 36),
    Sketcher.Constraint("Horizontal", 38),
    Sketcher.Constraint("Horizontal", 40),
    Sketcher.Constraint("Vertical", 42),
    Sketcher.Constraint("Horizontal", 44),
    Sketcher.Constraint("Vertical", 46),
    Sketcher.Constraint("Equal", 1, 3),
    Sketcher.Constraint("Equal", 3, 5),
    Sketcher.Constraint("Equal", 5, 7),
    Sketcher.Constraint("Equal", 7, 9),
    Sketcher.Constraint("Equal", 9, 11),
    Sketcher.Constraint("Equal", 11, 13),
    Sketcher.Constraint("Equal", 13, 15),
    Sketcher.Constraint("Equal", 15, 17),
    Sketcher.Constraint("Equal", 17, 19),
    Sketcher.Constraint("Equal", 19, 21),
    Sketcher.Constraint("Equal", 21, 23),
    Sketcher.Constraint("Equal", 23, 25),
    Sketcher.Constraint("Equal", 25, 27),
    Sketcher.Constraint("Equal", 27, 29),
    Sketcher.Constraint("Equal", 29, 31),
    Sketcher.Constraint("Equal", 31, 33),
    Sketcher.Constraint("Equal", 33, 35),
    Sketcher.Constraint("Equal", 35, 37),
    Sketcher.Constraint("Equal", 37, 39),
    Sketcher.Constraint("Equal", 39, 41),
    Sketcher.Constraint("Equal", 41, 43),
    Sketcher.Constraint("Equal", 43, 45),
    Sketcher.Constraint("Equal", 45, 47),
    Sketcher.Constraint("Symmetric", 1, 3, 17, 3, -1, 1),
    Sketcher.Constraint("Symmetric", 5, 3, 21, 3, -1, 1),
    Sketcher.Constraint("Symmetric", 9, 3, 25, 3, -1, 1),
    Sketcher.Constraint("Symmetric", 13, 3, 29, 3, -1, 1),
    Sketcher.Constraint("Symmetric", 13, 3, 17, 3, -2),
    Sketcher.Constraint("Symmetric", 9, 3, 21, 3, -2),
    Sketcher.Constraint("Symmetric", 37, 3, 41, 3, -2),
    Sketcher.Constraint("Symmetric", 33, 3, 45, 3, -2),
    Sketcher.Constraint("Vertical", 31, 3, 33, 3),
    Sketcher.Constraint("Vertical", 29, 3, 35, 3),
    Sketcher.Constraint("Equal", 28, 32),
    Sketcher.Constraint("Radius", 1, Q("0.1 in")),
    Sketcher.Constraint("DistanceX", 0, 2, 0, 1, Q("1.3 in")),
    Sketcher.Constraint("DistanceY", 2, 2, 2, 1, Q("0.3 in")),
    Sketcher.Constraint("DistanceY", -1, 1, 0, 2, Q("7 in")),
    Sketcher.Constraint("DistanceX", 5, 2, -1, 1, Q("4 in")),
    Sketcher.Constraint("DistanceY", -1, 1, 33, 3, Q("1.45 in")),
])
pocket7 = body.newObject("PartDesign::Pocket", "Pocket006")
pocket7.Profile = sketch8
pocket7.Type = "ThroughAll"
doc.recompute()

chamfer = body.newObject("PartDesign::Chamfer", "Chamfer")
chamfer.Base = (pocket7, edges_at(pocket7, [(-279.4, 3.175, -190.5), (279.4, 3.175, -190.5)]))
chamfer.Size = Q("4 in")
doc.recompute()

fillet = body.newObject("PartDesign::Fillet", "Fillet")
fillet.Base = (chamfer, edges_at(chamfer, [
    (-177.8, 3.175, -190.5),
    (177.8, 3.175, -190.5),
    (279.4, 3.175, -88.9),
    (-279.4, 3.175, -88.9),
    (279.4, 3.175, 190.5),
    (-279.4, 3.175, 190.5),
]))
fillet.Radius = Q("1 in")

# Sketch on XZ plane
sketch9 = body.newObject("Sketcher::SketchObject", "Sketch008")
sketch9.AttachmentSupport = (doc.getObject("XZ_Plane"), [""])
sketch9.MapMode = "FlatFace"
sketch9.AttachmentOffset = App.Placement(V(0, 0, -0.25 * 25.4), App.Rotation())
sketch9.addGeometry([
    Part.Circle(V(184.15, -114.3, 0), V(0, 0, 1), 34.925),
    Part.Circle(V(-184.15, -114.3, 0), V(0, 0, 1), 34.925),
], False)
sketch9.addConstraint([
    Sketcher.Constraint("Equal", 0, 1),
    Sketcher.Constraint("Symmetric", 0, 3, 1, 3, -2),
    Sketcher.Constraint("Diameter", 0, Q("2.75 in")),
    Sketcher.Constraint("DistanceY", 0, 3, -1, 1, Q("4.5 in")),
    Sketcher.Constraint("DistanceX", 1, 3, 0, 3, Q("14.5 in")),
])
pocket8 = body.newObject("PartDesign::Pocket", "Pocket007")
pocket8.Profile = sketch9
pocket8.Type = "ThroughAll"
pocket8.Reversed = True

# Sketch on XZ plane
sketch10 = body.newObject("Sketcher::SketchObject", "Sketch009")
sketch10.AttachmentSupport = (doc.getObject("XZ_Plane"), [""])
sketch10.MapMode = "FlatFace"
sketch10.addGeometry([
    Part.Circle(V(-241.3, 38.1, 0), V(0, 0, 1), 3.2639),  # 0
    Part.Circle(V(-241.3, -38.1, 0), V(0, 0, 1), 3.2639),  # 1
    Part.Circle(V(241.3, -38.1, 0), V(0, 0, 1), 3.2639),  # 2
    Part.Circle(V(241.3, 38.1, 0), V(0, 0, 1), 3.2639),  # 3
    Part.Circle(V(-76.2, 38.1, 0), V(0, 0, 1), 3.2639),  # 4
    Part.Circle(V(-76.2, -38.1, 0), V(0, 0, 1), 3.2639),  # 5
    Part.Circle(V(76.2, 38.1, 0), V(0, 0, 1), 3.2639),  # 6
    Part.Circle(V(76.2, -38.1, 0), V(0, 0, 1), 3.2639),  # 7
    Part.Circle(V(-50.8, 38.1, 0), V(0, 0, 1), 3.2639),  # 8
    Part.Circle(V(-50.8, -38.1, 0), V(0, 0, 1), 3.2639),  # 9
    Part.Circle(V(50.8, -38.1, 0), V(0, 0, 1), 3.2639),  # 10
    Part.Circle(V(50.8, 38.1, 0), V(0, 0, 1), 3.2639),  # 11
], False)
sketch10.addConstraint([
    Sketcher.Constraint("Equal", 0, 1),
    Sketcher.Constraint("Equal", 1, 2),
    Sketcher.Constraint("Equal", 2, 3),
    Sketcher.Constraint("Equal", 3, 4),
    Sketcher.Constraint("Equal", 4, 5),
    Sketcher.Constraint("Equal", 5, 6),
    Sketcher.Constraint("Equal", 6, 7),
    Sketcher.Constraint("Equal", 7, 8),
    Sketcher.Constraint("Equal", 8, 9),
    Sketcher.Constraint("Equal", 9, 10),
    Sketcher.Constraint("Equal", 10, 11),
    Sketcher.Constraint("Symmetric", 0, 3, 2, 3, -1, 1),
    Sketcher.Constraint("Symmetric", 1, 3, 3, 3, -1, 1),
    Sketcher.Constraint("Symmetric", 5, 3, 6, 3, -1, 1),
    Sketcher.Constraint("Symmetric", 4, 3, 7, 3, -1, 1),
    Sketcher.Constraint("Symmetric", 8, 3, 10, 3, -1, 1),
    Sketcher.Constraint("Symmetric", 9, 3, 11, 3, -1, 1),
    Sketcher.Constraint("Symmetric", 1, 3, 2, 3, -2),
    Sketcher.Constraint("Symmetric", 4, 3, 6, 3, -2),
    Sketcher.Constraint("Symmetric", 9, 3, 10, 3, -2),
    Sketcher.Constraint("Horizontal", 3, 3, 4, 3),
    Sketcher.Constraint("Horizontal", 6, 3, 8, 3),
    Sketcher.Constraint("Diameter", 0, Q("0.257 in")),
    Sketcher.Constraint("DistanceX", 4, 3, -1, 1, Q("3 in")),
    Sketcher.Constraint("DistanceX", 8, 3, -1, 1, Q("2 in")),
    Sketcher.Constraint("DistanceY", 1, 3, 0, 3, Q("3 in")),
    Sketcher.Constraint("DistanceX", 1, 3, 2, 3, Q("19 in")),
])
pocket9 = body.newObject("PartDesign::Pocket", "Pocket008")
pocket9.Profile = sketch10
pocket9.Type = "ThroughAll"

doc.recompute()
